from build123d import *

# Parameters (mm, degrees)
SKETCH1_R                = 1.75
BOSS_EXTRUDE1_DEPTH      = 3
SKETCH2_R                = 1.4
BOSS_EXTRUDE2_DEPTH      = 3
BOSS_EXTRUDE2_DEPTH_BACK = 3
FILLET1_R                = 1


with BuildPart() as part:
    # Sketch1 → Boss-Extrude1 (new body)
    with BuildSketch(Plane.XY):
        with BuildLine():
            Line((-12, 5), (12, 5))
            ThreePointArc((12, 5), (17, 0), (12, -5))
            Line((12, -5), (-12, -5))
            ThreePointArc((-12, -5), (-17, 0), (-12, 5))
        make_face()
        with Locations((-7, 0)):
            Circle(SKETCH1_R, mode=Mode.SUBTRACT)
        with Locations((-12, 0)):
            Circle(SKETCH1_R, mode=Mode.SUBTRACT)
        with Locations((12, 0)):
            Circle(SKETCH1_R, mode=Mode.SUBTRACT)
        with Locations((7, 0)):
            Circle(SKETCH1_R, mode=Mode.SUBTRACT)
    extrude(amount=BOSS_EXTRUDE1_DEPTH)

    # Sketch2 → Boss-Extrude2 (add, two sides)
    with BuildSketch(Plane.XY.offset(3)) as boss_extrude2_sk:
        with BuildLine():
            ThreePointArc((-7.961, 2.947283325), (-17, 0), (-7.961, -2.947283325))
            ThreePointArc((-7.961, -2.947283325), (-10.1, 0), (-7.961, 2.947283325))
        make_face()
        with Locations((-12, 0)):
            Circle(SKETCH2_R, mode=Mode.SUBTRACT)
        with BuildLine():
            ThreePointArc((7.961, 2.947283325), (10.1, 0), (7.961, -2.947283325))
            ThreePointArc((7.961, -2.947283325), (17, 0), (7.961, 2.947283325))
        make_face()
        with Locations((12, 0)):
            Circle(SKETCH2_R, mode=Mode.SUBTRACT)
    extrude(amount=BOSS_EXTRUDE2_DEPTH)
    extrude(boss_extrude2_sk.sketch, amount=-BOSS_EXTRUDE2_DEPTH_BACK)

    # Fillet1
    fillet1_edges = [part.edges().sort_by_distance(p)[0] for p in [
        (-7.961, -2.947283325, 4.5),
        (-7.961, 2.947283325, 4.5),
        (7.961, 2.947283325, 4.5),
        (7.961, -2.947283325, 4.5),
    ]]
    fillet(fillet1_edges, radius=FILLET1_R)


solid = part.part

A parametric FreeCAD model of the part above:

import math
import FreeCAD as App
import Part
import Sketcher
from FreeCAD import Vector


def edges_at(feature, points):
    """Names of the edges that pass closest to the given points."""
    edges = feature.Shape.Edges
    near = lambda p: min(range(len(edges)), key=lambda i: edges[i].distToShape(Part.Vertex(*p))[0])
    return sorted({f"Edge{near(p) + 1}" for p in points})

doc = App.newDocument("Part")
body = doc.addObject("PartDesign::Body", "Body")

sketch1 = doc.addObject("Sketcher::SketchObject", "Sketch")
body.addObject(sketch1)
sketch1.AttachmentSupport = (doc.XY_Plane, [""])
sketch1.MapMode = "FlatFace"
sketch1.addGeometry(Part.LineSegment(Vector(12, 5, 0), Vector(-12, 5, 0)), False)
sketch1.addGeometry(Part.ArcOfCircle(Part.Circle(Vector(-12, 0, 0), Vector(0, 0, 1), 5), math.radians(90), math.radians(270)), False)
sketch1.addGeometry(Part.LineSegment(Vector(-12, -5, 0), Vector(12, -5, 0)), False)
sketch1.addGeometry(Part.ArcOfCircle(Part.Circle(Vector(12, 0, 0), Vector(0, 0, 1), 5), math.radians(-90), math.radians(90)), False)
sketch1.addGeometry(Part.Circle(Vector(12, 0, 0), Vector(0, 0, 1), 1.75), False)
sketch1.addGeometry(Part.Circle(Vector(7, 0, 0), Vector(0, 0, 1), 1.75), False)
sketch1.addGeometry(Part.Circle(Vector(-7, 0, 0), Vector(0, 0, 1), 1.75), False)
sketch1.addGeometry(Part.Circle(Vector(-12, 0, 0), Vector(0, 0, 1), 1.75), False)
sketch1.addConstraint(Sketcher.Constraint("Tangent", 0, 2, 1, 1))
sketch1.addConstraint(Sketcher.Constraint("Tangent", 1, 2, 2, 1))
sketch1.addConstraint(Sketcher.Constraint("Tangent", 2, 2, 3, 1))
sketch1.addConstraint(Sketcher.Constraint("Tangent", 3, 2, 0, 1))
sketch1.addConstraint(Sketcher.Constraint("Horizontal", 0))
sketch1.addConstraint(Sketcher.Constraint("Horizontal", 2))
sketch1.addConstraint(Sketcher.Constraint("Coincident", 4, 3, 3, 3))
sketch1.addConstraint(Sketcher.Constraint("Coincident", 7, 3, 1, 3))
sketch1.addConstraint(Sketcher.Constraint("Equal", 4, 5))
sketch1.addConstraint(Sketcher.Constraint("Equal", 5, 6))
sketch1.addConstraint(Sketcher.Constraint("Equal", 6, 7))
sketch1.addConstraint(Sketcher.Constraint("Symmetric", 1, 3, 3, 3, -1, 1))
sketch1.addConstraint(Sketcher.Constraint("Symmetric", 5, 3, 6, 3, -1, 1))
sketch1.addConstraint(Sketcher.Constraint("PointOnObject", 5, 3, -1))
sketch1.addConstraint(Sketcher.Constraint("Radius", 1, 5.0))
sketch1.addConstraint(Sketcher.Constraint("Diameter", 4, 3.5))
sketch1.addConstraint(Sketcher.Constraint("DistanceX", 0, 2, 0, 1, 24.0))
sketch1.addConstraint(Sketcher.Constraint("DistanceX", -1, 1, 5, 3, 7.0))
pad1 = doc.addObject("PartDesign::Pad", "Pad")
body.addObject(pad1)
pad1.Profile = sketch1
pad1.Length = 3

sketch2 = doc.addObject("Sketcher::SketchObject", "Sketch001")
body.addObject(sketch2)
sketch2.AttachmentSupport = (doc.XY_Plane, [""])
sketch2.MapMode = "FlatFace"
sketch2.AttachmentOffset = App.Placement(Vector(0, 0, 3), App.Rotation())
sketch2.addGeometry(Part.ArcOfCircle(Part.Circle(Vector(-12, 0, 0), Vector(0, 0, 1), 5), math.radians(36.118461), math.radians(323.881539)), False)
sketch2.addGeometry(Part.ArcOfCircle(Part.Circle(Vector(-7, 0, 0), Vector(0, 0, 1), 3.1), math.radians(108.05923), math.radians(251.94077)), False)
sketch2.addGeometry(Part.Circle(Vector(-12, 0, 0), Vector(0, 0, 1), 1.4), False)
sketch2.addGeometry(Part.ArcOfCircle(Part.Circle(Vector(7, 0, 0), Vector(0, 0, 1), 3.1), math.radians(-71.94077), math.radians(71.94077)), False)
sketch2.addGeometry(Part.ArcOfCircle(Part.Circle(Vector(12, 0, 0), Vector(0, 0, 1), 5), math.radians(-143.881539), math.radians(143.881539)), False)
sketch2.addGeometry(Part.Circle(Vector(12, 0, 0), Vector(0, 0, 1), 1.4), False)
sketch2.addConstraint(Sketcher.Constraint("Coincident", 0, 1, 1, 1))
sketch2.addConstraint(Sketcher.Constraint("Coincident", 1, 2, 0, 2))
sketch2.addConstraint(Sketcher.Constraint("Coincident", 3, 1, 4, 1))
sketch2.addConstraint(Sketcher.Constraint("Coincident", 4, 2, 3, 2))
sketch2.addConstraint(Sketcher.Constraint("Coincident", 2, 3, 0, 3))
sketch2.addConstraint(Sketcher.Constraint("Coincident", 5, 3, 4, 3))
sketch2.addConstraint(Sketcher.Constraint("Equal", 1, 3))
sketch2.addConstraint(Sketcher.Constraint("Equal", 0, 4))
sketch2.addConstraint(Sketcher.Constraint("Equal", 2, 5))
sketch2.addConstraint(Sketcher.Constraint("Symmetric", 1, 3, 3, 3, -1, 1))
sketch2.addConstraint(Sketcher.Constraint("Symmetric", 0, 3, 4, 3, -1, 1))
sketch2.addConstraint(Sketcher.Constraint("Symmetric", 1, 2, 3, 1, -2))
sketch2.addConstraint(Sketcher.Constraint("Radius", 0, 5.0))
sketch2.addConstraint(Sketcher.Constraint("Diameter", 2, 2.8))
sketch2.addConstraint(Sketcher.Constraint("Radius", 1, 3.1))
sketch2.addConstraint(Sketcher.Constraint("DistanceX", 0, 3, -1, 1, 12.0))
sketch2.addConstraint(Sketcher.Constraint("DistanceX", 1, 3, -1, 1, 7.0))
pad2 = doc.addObject("PartDesign::Pad", "Pad001")
body.addObject(pad2)
pad2.Profile = sketch2
pad2.Type = "TwoLengths"
pad2.Length = 3
pad2.Length2 = 3
doc.recompute()

fillet = doc.addObject("PartDesign::Fillet", "Fillet")
body.addObject(fillet)
fillet.Base = (pad2, edges_at(pad2, [
    (-7.961, -2.947, 4.5),
    (-7.961, 2.947, 4.5),
    (7.961, 2.947, 4.5),
    (7.961, -2.947, 4.5),
]))
fillet.Radius = 1

doc.recompute()
